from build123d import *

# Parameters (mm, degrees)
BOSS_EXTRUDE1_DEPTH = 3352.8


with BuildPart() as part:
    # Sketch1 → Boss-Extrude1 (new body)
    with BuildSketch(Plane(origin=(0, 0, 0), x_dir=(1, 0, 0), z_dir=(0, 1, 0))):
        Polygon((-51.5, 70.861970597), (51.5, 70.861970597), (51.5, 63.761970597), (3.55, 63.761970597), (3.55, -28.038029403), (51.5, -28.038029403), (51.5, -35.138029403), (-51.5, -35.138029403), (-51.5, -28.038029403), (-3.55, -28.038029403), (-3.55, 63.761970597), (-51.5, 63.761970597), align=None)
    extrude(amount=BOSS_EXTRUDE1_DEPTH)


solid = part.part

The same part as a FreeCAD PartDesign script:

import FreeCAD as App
import Part
import Sketcher
from FreeCAD import Vector


def add_polygon(sketch, points):
    """Adds a closed chain of lines whose ends are joined by coincident constraints."""
    first, n = sketch.GeometryCount, len(points)
    for a, b in zip(points, points[1:] + points[:1]):
        sketch.addGeometry(Part.LineSegment(App.Vector(*a, 0), App.Vector(*b, 0)), False)
    for i in range(n):
        sketch.addConstraint(Sketcher.Constraint("Coincident", first + i, 2, first + (i + 1) % n, 1))

doc = App.newDocument("Part")
body = doc.addObject("PartDesign::Body", "Body")

sketch1 = doc.addObject("Sketcher::SketchObject", "Sketch")
body.addObject(sketch1)
sketch1.AttachmentSupport = (doc.XZ_Plane, [""])
sketch1.MapMode = "FlatFace"
add_polygon(sketch1, [(52, -71), (-52, -71), (-52, -64), (-4, -64), (-4, 28), (-52, 28), (-52, 35), (52, 35), (52, 28), (4, 28), (4, -64), (52, -64)])
sketch1.addConstraint([
    Sketcher.Constraint("Horizontal", 0),
    Sketcher.Constraint("Vertical", 1),
    Sketcher.Constraint("Horizontal", 2),
    Sketcher.Constraint("Vertical", 3),
    Sketcher.Constraint("Horizontal", 4),
    Sketcher.Constraint("Vertical", 5),
    Sketcher.Constraint("Horizontal", 6),
    Sketcher.Constraint("Vertical", 7),
    Sketcher.Constraint("Horizontal", 8),
    Sketcher.Constraint("Vertical", 9),
    Sketcher.Constraint("Horizontal", 10),
    Sketcher.Constraint("Vertical", 11),
    Sketcher.Constraint("Symmetric", 4, 2, 7, 2, -2),
    Sketcher.Constraint("Symmetric", 2, 2, 9, 2, -2),
    Sketcher.Constraint("Vertical", 1, 2, 4, 2),
    Sketcher.Constraint("Vertical", 7, 2, 10, 2),
    Sketcher.Constraint("Equal", 1, 5),
    Sketcher.Constraint("DistanceX", 0, 2, 0, 1, 103.0),
    Sketcher.Constraint("DistanceY", 1, 1, 1, 2, 7.1),
    Sketcher.Constraint("DistanceY", 3, 1, 3, 2, 91.8),
    Sketcher.Constraint("DistanceX", 2, 1, 2, 2, 47.95),
    Sketcher.Constraint("DistanceY", 0, 2, -1, 1, 70.861971),
])
pad1 = doc.addObject("PartDesign::Pad", "Pad")
body.addObject(pad1)
pad1.Profile = sketch1
pad1.Length = 3352.8
pad1.Reversed = True

doc.recompute()
